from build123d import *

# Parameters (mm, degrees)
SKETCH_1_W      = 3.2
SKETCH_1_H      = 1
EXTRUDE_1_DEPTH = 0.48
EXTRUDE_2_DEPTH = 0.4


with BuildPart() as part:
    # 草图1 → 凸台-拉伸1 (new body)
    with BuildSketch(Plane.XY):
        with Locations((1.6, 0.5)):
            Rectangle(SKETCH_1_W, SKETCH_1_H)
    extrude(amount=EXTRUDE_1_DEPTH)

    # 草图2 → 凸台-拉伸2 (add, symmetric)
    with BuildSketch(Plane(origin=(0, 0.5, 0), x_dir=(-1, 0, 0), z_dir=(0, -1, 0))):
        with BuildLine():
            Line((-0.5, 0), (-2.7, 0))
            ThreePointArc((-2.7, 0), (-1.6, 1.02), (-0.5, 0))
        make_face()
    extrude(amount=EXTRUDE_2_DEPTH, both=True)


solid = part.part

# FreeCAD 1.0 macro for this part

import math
import FreeCAD as App
import Part
import Sketcher
from FreeCAD import Vector
Q = App.Units.Quantity


def add_polygon(sketch, points):
    """Adds a closed chain of lines whose ends are joined by coincident constraints."""
    first, n = sketch.GeometryCount, len(points)
    for a, b in zip(points, points[1:] + points[:1]):
        sketch.addGeometry(Part.LineSegment(App.Vector(*a, 0), App.Vector(*b, 0)), False)
    for i in range(n):
        sketch.addConstraint(Sketcher.Constraint("Coincident", first + i, 2, first + (i + 1) % n, 1))

doc = App.newDocument("Part")
body = doc.addObject("PartDesign::Body", "Body")

# Sketch on XY plane
sketch1 = body.newObject("Sketcher::SketchObject", "Sketch")
sketch1.AttachmentSupport = (doc.getObject("XY_Plane"), [""])
sketch1.MapMode = "FlatFace"
add_polygon(sketch1, [(0, 1), (0, 0), (3.2, 0), (3.2, 1)])  # lines 0-3
sketch1.addConstraint([
    Sketcher.Constraint("Vertical", 0),
    Sketcher.Constraint("Horizontal", 1),
    Sketcher.Constraint("Vertical", 2),
    Sketcher.Constraint("Horizontal", 3),
    Sketcher.Constraint("Coincident", 0, 2, -1, 1),
    Sketcher.Constraint("DistanceY", 0, 2, 0, 1, Q("1 mm")),
    Sketcher.Constraint("DistanceX", 1, 1, 1, 2, Q("3.2 mm")),
])
pad1 = body.newObject("PartDesign::Pad", "Pad")
pad1.Profile = sketch1
pad1.Length = 0.48

# Sketch on XZ plane
sketch2 = body.newObject("Sketcher::SketchObject", "Sketch001")
sketch2.AttachmentSupport = (doc.getObject("XZ_Plane"), [""])
sketch2.MapMode = "FlatFace"
sketch2.AttachmentOffset = App.Placement(Vector(0, 0, -0.5), App.Rotation())
sketch2.addGeometry([
    Part.LineSegment(Vector(2.7, 0, 0), Vector(0.5, 0, 0)),
    Part.ArcOfCircle(Part.Circle(Vector(1.6, 0.1, 0), Vector(0, 0, 1), 1.1), math.radians(-176), math.radians(-4)),
], False)
sketch2.addConstraint([
    Sketcher.Constraint("Coincident", 0, 1, 1, 2),
    Sketcher.Constraint("Coincident", 1, 1, 0, 2),
    Sketcher.Constraint("Horizontal", 0),
    Sketcher.Constraint("PointOnObject", 0, 1, -1),
    Sketcher.Constraint("DistanceX", 0, 2, 0, 1, Q("2.2 mm")),
    Sketcher.Constraint("DistanceX", -1, 1, 1, 3, Q("1.6 mm")),
    Sketcher.Constraint("Radius", 1, Q("1.103137 mm")),
])
pad2 = body.newObject("PartDesign::Pad", "Pad001")
pad2.Profile = sketch2
pad2.Length = 0.8
pad2.Midplane = True

doc.recompute()
